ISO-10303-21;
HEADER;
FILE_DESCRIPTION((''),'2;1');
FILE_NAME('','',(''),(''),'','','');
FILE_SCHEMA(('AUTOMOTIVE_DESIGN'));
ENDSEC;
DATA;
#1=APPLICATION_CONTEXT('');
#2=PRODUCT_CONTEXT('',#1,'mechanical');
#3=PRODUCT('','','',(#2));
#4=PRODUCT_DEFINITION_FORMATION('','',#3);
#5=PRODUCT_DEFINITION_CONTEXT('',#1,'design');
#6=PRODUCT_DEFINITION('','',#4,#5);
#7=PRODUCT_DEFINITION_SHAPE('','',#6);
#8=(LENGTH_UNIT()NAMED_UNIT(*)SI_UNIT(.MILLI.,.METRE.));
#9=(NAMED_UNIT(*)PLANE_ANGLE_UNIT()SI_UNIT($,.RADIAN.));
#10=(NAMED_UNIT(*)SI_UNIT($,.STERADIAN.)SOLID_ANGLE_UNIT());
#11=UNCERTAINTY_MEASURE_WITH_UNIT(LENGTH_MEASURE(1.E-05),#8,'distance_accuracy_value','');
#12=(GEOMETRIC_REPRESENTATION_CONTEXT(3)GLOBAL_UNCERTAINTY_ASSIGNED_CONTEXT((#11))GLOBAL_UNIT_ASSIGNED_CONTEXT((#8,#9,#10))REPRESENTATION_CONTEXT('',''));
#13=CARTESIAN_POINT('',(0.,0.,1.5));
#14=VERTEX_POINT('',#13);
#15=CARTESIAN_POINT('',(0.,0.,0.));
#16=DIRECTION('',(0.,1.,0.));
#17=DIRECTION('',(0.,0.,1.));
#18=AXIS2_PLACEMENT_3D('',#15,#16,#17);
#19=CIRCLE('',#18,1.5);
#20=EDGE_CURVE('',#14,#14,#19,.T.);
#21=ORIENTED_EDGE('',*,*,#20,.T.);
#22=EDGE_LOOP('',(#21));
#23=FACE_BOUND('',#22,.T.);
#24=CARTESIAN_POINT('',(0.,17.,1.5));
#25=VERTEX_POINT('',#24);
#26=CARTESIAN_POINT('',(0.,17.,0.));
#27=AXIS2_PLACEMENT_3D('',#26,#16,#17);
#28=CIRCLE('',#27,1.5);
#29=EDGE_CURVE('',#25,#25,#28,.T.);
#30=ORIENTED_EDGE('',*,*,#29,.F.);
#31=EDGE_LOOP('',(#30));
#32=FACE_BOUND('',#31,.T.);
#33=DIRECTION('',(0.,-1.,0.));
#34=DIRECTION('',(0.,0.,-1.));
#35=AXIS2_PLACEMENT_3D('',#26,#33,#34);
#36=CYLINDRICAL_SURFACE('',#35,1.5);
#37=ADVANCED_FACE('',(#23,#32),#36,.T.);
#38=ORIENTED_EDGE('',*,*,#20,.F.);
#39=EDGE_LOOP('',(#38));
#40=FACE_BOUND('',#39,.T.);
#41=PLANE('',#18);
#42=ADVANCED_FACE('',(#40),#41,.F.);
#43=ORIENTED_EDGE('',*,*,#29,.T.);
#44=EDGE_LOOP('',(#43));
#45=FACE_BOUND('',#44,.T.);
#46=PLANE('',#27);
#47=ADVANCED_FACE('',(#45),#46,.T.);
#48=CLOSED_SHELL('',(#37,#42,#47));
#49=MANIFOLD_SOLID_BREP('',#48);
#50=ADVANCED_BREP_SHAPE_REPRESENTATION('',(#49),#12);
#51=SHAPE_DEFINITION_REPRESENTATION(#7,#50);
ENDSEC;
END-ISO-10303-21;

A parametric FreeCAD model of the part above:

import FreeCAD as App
import Part
import Sketcher

V = App.Vector
Q = App.Units.Quantity

doc = App.newDocument("Part")
body = doc.addObject("PartDesign::Body", "Body")

sketch1 = body.newObject("Sketcher::SketchObject", "Sketch")
sketch1.AttachmentSupport = (doc.getObject("XZ_Plane"), [""])
sketch1.MapMode = "FlatFace"
sketch1.addGeometry(Part.Circle(V(0, 0, 0), V(0, 0, 1), 1.5), False)
sketch1.addConstraint([
    Sketcher.Constraint("Coincident", 0, 3, -1, 1),
    Sketcher.Constraint("Diameter", 0, Q("3 mm")),
])
pad1 = body.newObject("PartDesign::Pad", "Pad")
pad1.Profile = sketch1
pad1.Length = 17
pad1.Reversed = True

doc.recompute()
